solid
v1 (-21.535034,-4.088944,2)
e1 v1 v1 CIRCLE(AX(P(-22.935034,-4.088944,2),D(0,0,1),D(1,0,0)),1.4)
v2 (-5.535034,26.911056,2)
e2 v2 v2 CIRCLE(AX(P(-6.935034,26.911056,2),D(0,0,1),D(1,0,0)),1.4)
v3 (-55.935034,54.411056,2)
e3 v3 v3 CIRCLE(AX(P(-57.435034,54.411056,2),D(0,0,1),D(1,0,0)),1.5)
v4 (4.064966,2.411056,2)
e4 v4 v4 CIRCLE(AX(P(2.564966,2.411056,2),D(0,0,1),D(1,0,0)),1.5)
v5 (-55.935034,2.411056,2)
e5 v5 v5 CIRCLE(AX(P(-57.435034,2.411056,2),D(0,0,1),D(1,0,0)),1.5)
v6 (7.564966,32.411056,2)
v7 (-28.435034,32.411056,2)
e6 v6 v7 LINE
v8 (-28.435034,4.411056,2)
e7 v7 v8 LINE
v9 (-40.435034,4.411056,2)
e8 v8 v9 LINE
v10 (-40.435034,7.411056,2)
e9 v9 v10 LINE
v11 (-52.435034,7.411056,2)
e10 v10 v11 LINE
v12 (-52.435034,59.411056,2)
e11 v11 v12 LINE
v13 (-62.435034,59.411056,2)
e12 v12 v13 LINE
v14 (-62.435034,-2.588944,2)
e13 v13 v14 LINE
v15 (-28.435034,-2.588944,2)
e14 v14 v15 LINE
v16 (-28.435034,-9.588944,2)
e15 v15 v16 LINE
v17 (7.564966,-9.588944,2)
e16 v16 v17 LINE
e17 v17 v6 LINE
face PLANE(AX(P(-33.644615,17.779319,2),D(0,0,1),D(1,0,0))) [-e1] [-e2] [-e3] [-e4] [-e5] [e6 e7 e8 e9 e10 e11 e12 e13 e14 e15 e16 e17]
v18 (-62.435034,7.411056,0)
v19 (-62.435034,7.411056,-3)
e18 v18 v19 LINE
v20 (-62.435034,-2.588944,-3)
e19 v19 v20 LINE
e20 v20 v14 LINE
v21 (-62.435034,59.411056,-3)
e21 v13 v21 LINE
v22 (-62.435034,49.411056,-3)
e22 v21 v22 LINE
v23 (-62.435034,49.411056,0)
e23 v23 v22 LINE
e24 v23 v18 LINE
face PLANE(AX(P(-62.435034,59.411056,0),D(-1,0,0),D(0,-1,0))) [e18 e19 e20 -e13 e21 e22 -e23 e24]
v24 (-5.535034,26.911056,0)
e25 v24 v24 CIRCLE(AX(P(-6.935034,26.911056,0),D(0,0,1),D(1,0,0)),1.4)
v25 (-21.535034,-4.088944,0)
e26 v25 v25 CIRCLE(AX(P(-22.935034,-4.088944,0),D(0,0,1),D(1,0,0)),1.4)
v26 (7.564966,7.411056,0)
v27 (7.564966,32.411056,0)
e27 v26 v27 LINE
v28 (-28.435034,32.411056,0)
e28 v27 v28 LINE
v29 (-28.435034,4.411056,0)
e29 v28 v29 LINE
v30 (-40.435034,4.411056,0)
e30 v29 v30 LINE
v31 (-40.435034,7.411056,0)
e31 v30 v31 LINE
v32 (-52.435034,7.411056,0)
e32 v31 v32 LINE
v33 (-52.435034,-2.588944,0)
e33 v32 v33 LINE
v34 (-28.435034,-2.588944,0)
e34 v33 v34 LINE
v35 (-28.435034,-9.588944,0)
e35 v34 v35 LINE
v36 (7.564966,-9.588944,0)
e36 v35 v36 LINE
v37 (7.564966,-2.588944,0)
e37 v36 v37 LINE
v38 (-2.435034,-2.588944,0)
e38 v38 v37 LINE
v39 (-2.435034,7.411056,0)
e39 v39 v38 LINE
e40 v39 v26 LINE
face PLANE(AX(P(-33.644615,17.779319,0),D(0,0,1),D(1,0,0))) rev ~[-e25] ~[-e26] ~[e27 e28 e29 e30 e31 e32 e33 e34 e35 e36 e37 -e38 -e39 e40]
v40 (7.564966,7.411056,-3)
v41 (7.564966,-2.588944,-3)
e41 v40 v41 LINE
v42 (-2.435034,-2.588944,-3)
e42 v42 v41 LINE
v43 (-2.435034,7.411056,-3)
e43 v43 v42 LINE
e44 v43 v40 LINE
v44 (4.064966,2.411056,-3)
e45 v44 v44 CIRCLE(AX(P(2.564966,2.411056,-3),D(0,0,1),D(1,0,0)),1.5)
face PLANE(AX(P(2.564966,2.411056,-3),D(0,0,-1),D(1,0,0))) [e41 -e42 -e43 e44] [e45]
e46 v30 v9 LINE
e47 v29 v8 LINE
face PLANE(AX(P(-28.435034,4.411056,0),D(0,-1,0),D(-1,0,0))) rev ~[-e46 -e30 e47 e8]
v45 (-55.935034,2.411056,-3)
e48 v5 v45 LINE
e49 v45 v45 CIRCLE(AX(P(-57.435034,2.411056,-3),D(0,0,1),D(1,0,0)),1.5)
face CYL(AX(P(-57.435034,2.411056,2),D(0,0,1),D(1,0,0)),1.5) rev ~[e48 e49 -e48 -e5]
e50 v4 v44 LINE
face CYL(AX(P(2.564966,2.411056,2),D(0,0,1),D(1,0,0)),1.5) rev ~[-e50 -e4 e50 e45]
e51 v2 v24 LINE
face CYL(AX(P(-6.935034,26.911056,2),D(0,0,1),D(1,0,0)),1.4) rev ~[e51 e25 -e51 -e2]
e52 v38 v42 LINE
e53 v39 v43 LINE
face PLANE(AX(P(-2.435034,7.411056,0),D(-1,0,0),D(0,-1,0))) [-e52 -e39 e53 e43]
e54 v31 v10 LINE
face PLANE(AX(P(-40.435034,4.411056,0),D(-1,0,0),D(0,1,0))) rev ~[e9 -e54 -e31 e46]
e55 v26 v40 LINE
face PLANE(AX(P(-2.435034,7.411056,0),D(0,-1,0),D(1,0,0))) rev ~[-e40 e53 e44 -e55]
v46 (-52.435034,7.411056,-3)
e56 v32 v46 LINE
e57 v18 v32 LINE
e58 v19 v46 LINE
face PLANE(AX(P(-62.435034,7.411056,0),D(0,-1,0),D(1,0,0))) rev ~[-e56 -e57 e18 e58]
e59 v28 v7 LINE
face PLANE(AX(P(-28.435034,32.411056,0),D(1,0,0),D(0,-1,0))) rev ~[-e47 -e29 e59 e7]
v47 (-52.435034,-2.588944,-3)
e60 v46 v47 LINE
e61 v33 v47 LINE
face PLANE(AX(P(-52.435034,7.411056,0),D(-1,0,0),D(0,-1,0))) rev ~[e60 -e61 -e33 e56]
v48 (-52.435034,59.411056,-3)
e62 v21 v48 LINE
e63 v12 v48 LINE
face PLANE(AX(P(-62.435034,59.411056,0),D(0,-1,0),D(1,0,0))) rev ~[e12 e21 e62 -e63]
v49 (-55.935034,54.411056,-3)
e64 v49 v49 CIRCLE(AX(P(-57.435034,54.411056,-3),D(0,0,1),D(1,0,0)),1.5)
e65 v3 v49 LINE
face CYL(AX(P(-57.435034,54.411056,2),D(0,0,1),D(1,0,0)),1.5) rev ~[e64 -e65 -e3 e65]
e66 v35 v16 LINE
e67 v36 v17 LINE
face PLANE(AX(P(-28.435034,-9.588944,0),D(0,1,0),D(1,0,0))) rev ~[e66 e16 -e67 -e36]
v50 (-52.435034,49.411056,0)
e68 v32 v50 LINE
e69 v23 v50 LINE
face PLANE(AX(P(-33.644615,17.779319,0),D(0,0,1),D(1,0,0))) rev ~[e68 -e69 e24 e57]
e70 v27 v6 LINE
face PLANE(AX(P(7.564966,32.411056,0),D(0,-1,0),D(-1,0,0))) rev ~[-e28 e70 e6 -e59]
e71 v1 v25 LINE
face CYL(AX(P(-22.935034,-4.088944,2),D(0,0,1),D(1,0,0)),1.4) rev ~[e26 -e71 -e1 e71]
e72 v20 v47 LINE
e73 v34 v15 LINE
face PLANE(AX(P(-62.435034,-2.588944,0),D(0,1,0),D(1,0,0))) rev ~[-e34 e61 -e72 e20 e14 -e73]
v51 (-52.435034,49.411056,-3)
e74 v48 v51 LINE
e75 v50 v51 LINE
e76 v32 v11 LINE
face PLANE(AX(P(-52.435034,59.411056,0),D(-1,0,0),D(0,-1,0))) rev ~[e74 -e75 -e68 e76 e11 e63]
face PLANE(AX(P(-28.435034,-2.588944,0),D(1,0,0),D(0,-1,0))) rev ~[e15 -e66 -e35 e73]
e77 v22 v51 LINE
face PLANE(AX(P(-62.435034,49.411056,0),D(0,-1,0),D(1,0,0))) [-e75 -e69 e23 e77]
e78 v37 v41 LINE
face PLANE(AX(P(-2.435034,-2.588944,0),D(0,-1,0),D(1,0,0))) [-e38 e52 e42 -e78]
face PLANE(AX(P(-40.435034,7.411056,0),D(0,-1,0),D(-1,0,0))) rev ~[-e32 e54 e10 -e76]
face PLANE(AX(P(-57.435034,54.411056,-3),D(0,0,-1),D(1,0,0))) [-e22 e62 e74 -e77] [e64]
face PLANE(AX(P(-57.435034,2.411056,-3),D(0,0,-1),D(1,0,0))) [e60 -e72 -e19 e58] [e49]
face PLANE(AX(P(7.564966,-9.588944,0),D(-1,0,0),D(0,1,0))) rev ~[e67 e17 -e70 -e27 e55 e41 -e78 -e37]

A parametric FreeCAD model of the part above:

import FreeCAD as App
import Part
import Sketcher

V = App.Vector
Q = App.Units.Quantity

doc = App.newDocument("Part")
body = doc.addObject("PartDesign::Body", "Body")

# Sketch on XY plane
sketch1 = doc.addObject("Sketcher::SketchObject", "Sketch")
body.addObject(sketch1)
sketch1.AttachmentSupport = (doc.XY_Plane, [""])
sketch1.MapMode = "FlatFace"
sketch1.addGeometry(Part.LineSegment(V(-52.435034, 59.411056, 0), V(-62.435034, 59.411056, 0)), False)
sketch1.addGeometry(Part.LineSegment(V(-62.435034, 59.411056, 0), V(-62.435034, -2.588944, 0)), False)
sketch1.addGeometry(Part.LineSegment(V(-62.435034, -2.588944, 0), V(-28.435034, -2.588944, 0)), False)
sketch1.addGeometry(Part.LineSegment(V(-28.435034, -2.588944, 0), V(-28.435034, -9.588944, 0)), False)
sketch1.addGeometry(Part.LineSegment(V(-28.435034, -9.588944, 0), V(7.564966, -9.588944, 0)), False)
sketch1.addGeometry(Part.LineSegment(V(7.564966, -9.588944, 0), V(7.564966, 32.411056, 0)), False)
sketch1.addGeometry(Part.LineSegment(V(7.564966, 32.411056, 0), V(-28.435034, 32.411056, 0)), False)
sketch1.addGeometry(Part.LineSegment(V(-28.435034, 32.411056, 0), V(-28.435034, 4.411056, 0)), False)
sketch1.addGeometry(Part.LineSegment(V(-28.435034, 4.411056, 0), V(-40.435034, 4.411056, 0)), False)
sketch1.addGeometry(Part.LineSegment(V(-40.435034, 4.411056, 0), V(-40.435034, 7.411056, 0)), False)
sketch1.addGeometry(Part.LineSegment(V(-40.435034, 7.411056, 0), V(-52.435034, 7.411056, 0)), False)
sketch1.addGeometry(Part.LineSegment(V(-52.435034, 7.411056, 0), V(-52.435034, 59.411056, 0)), False)
sketch1.addConstraint(Sketcher.Constraint("Coincident", 0, 2, 1, 1))
sketch1.addConstraint(Sketcher.Constraint("Coincident", 1, 2, 2, 1))
sketch1.addConstraint(Sketcher.Constraint("Coincident", 2, 2, 3, 1))
sketch1.addConstraint(Sketcher.Constraint("Coincident", 3, 2, 4, 1))
sketch1.addConstraint(Sketcher.Constraint("Coincident", 4, 2, 5, 1))
sketch1.addConstraint(Sketcher.Constraint("Coincident", 5, 2, 6, 1))
sketch1.addConstraint(Sketcher.Constraint("Coincident", 6, 2, 7, 1))
sketch1.addConstraint(Sketcher.Constraint("Coincident", 7, 2, 8, 1))
sketch1.addConstraint(Sketcher.Constraint("Coincident", 8, 2, 9, 1))
sketch1.addConstraint(Sketcher.Constraint("Coincident", 9, 2, 10, 1))
sketch1.addConstraint(Sketcher.Constraint("Coincident", 10, 2, 11, 1))
sketch1.addConstraint(Sketcher.Constraint("Coincident", 11, 2, 0, 1))
sketch1.addConstraint(Sketcher.Constraint("Horizontal", 0))
sketch1.addConstraint(Sketcher.Constraint("Vertical", 1))
sketch1.addConstraint(Sketcher.Constraint("Horizontal", 2))
sketch1.addConstraint(Sketcher.Constraint("Vertical", 3))
sketch1.addConstraint(Sketcher.Constraint("Horizontal", 4))
sketch1.addConstraint(Sketcher.Constraint("Vertical", 5))
sketch1.addConstraint(Sketcher.Constraint("Horizontal", 6))
sketch1.addConstraint(Sketcher.Constraint("Vertical", 7))
sketch1.addConstraint(Sketcher.Constraint("Horizontal", 8))
sketch1.addConstraint(Sketcher.Constraint("Vertical", 9))
sketch1.addConstraint(Sketcher.Constraint("Horizontal", 10))
sketch1.addConstraint(Sketcher.Constraint("Vertical", 11))
sketch1.addConstraint(Sketcher.Constraint("Vertical", 3, 2, 6, 2))
sketch1.addConstraint(Sketcher.Constraint("Equal", 8, 10))
sketch1.addConstraint(Sketcher.Constraint("DistanceX", 0, 2, 0, 1, Q("10 mm")))
sketch1.addConstraint(Sketcher.Constraint("DistanceX", 2, 1, 2, 2, Q("34 mm")))
sketch1.addConstraint(Sketcher.Constraint("DistanceX", 4, 1, 4, 2, Q("36 mm")))
sketch1.addConstraint(Sketcher.Constraint("DistanceY", 1, 2, 1, 1, Q("62 mm")))
sketch1.addConstraint(Sketcher.Constraint("DistanceY", 3, 2, 3, 1, Q("7 mm")))
sketch1.addConstraint(Sketcher.Constraint("DistanceY", 5, 1, 5, 2, Q("42 mm")))
sketch1.addConstraint(Sketcher.Constraint("DistanceY", 7, 2, 7, 1, Q("28 mm")))
sketch1.addConstraint(Sketcher.Constraint("DistanceY", 9, 1, 9, 2, Q("3 mm")))
sketch1.addConstraint(Sketcher.Constraint("DistanceX", 0, 2, -1, 1, Q("62.435034 mm")))
sketch1.addConstraint(Sketcher.Constraint("DistanceY", -1, 1, 0, 2, Q("59.411056 mm")))
pad1 = doc.addObject("PartDesign::Pad", "Pad")
body.addObject(pad1)
pad1.Profile = sketch1
pad1.Length = 2

# Sketch on XY plane
sketch2 = doc.addObject("Sketcher::SketchObject", "Sketch001")
body.addObject(sketch2)
sketch2.AttachmentSupport = (doc.XY_Plane, [""])
sketch2.MapMode = "FlatFace"
sketch2.addGeometry(Part.LineSegment(V(-62.435034, 49.411056, 0), V(-62.435034, 59.411056, 0)), False)
sketch2.addGeometry(Part.LineSegment(V(-62.435034, 59.411056, 0), V(-52.435034, 59.411056, 0)), False)
sketch2.addGeometry(Part.LineSegment(V(-52.435034, 59.411056, 0), V(-52.435034, 49.411056, 0)), False)
sketch2.addGeometry(Part.LineSegment(V(-52.435034, 49.411056, 0), V(-62.435034, 49.411056, 0)), False)
sketch2.addGeometry(Part.LineSegment(V(-62.435034, -2.588944, 0), V(-62.435034, 7.411056, 0)), False)
sketch2.addGeometry(Part.LineSegment(V(-62.435034, 7.411056, 0), V(-52.435034, 7.411056, 0)), False)
sketch2.addGeometry(Part.LineSegment(V(-52.435034, 7.411056, 0), V(-52.435034, -2.588944, 0)), False)
sketch2.addGeometry(Part.LineSegment(V(-52.435034, -2.588944, 0), V(-62.435034, -2.588944, 0)), False)
sketch2.addGeometry(Part.LineSegment(V(-2.435034, -2.588944, 0), V(-2.435034, 7.411056, 0)), False)
sketch2.addGeometry(Part.LineSegment(V(-2.435034, 7.411056, 0), V(7.564966, 7.411056, 0)), False)
sketch2.addGeometry(Part.LineSegment(V(7.564966, 7.411056, 0), V(7.564966, -2.588944, 0)), False)
sketch2.addGeometry(Part.LineSegment(V(7.564966, -2.588944, 0), V(-2.435034, -2.588944, 0)), False)
sketch2.addConstraint(Sketcher.Constraint("Coincident", 0, 2, 1, 1))
sketch2.addConstraint(Sketcher.Constraint("Coincident", 1, 2, 2, 1))
sketch2.addConstraint(Sketcher.Constraint("Coincident", 2, 2, 3, 1))
sketch2.addConstraint(Sketcher.Constraint("Coincident", 3, 2, 0, 1))
sketch2.addConstraint(Sketcher.Constraint("Coincident", 4, 2, 5, 1))
sketch2.addConstraint(Sketcher.Constraint("Coincident", 5, 2, 6, 1))
sketch2.addConstraint(Sketcher.Constraint("Coincident", 6, 2, 7, 1))
sketch2.addConstraint(Sketcher.Constraint("Coincident", 7, 2, 4, 1))
sketch2.addConstraint(Sketcher.Constraint("Coincident", 8, 2, 9, 1))
sketch2.addConstraint(Sketcher.Constraint("Coincident", 9, 2, 10, 1))
sketch2.addConstraint(Sketcher.Constraint("Coincident", 10, 2, 11, 1))
sketch2.addConstraint(Sketcher.Constraint("Coincident", 11, 2, 8, 1))
sketch2.addConstraint(Sketcher.Constraint("Vertical", 0))
sketch2.addConstraint(Sketcher.Constraint("Horizontal", 1))
sketch2.addConstraint(Sketcher.Constraint("Vertical", 2))
sketch2.addConstraint(Sketcher.Constraint("Horizontal", 3))
sketch2.addConstraint(Sketcher.Constraint("Vertical", 4))
sketch2.addConstraint(Sketcher.Constraint("Horizontal", 5))
sketch2.addConstraint(Sketcher.Constraint("Vertical", 6))
sketch2.addConstraint(Sketcher.Constraint("Horizontal", 7))
sketch2.addConstraint(Sketcher.Constraint("Vertical", 8))
sketch2.addConstraint(Sketcher.Constraint("Horizontal", 9))
sketch2.addConstraint(Sketcher.Constraint("Vertical", 10))
sketch2.addConstraint(Sketcher.Constraint("Horizontal", 11))
sketch2.addConstraint(Sketcher.Constraint("Horizontal", 5, 2, 8, 2))
sketch2.addConstraint(Sketcher.Constraint("Horizontal", 7, 2, 10, 2))
sketch2.addConstraint(Sketcher.Constraint("Vertical", 3, 2, 4, 2))
sketch2.addConstraint(Sketcher.Constraint("Vertical", 2, 2, 5, 2))
sketch2.addConstraint(Sketcher.Constraint("Equal", 7, 9))
sketch2.addConstraint(Sketcher.Constraint("Equal", 11, 0))
sketch2.addConstraint(Sketcher.Constraint("Equal", 2, 4))
sketch2.addConstraint(Sketcher.Constraint("DistanceX", 1, 1, 1, 2, Q("10 mm")))
sketch2.addConstraint(Sketcher.Constraint("DistanceY", 4, 2, 3, 2, Q("42 mm")))
sketch2.addConstraint(Sketcher.Constraint("DistanceX", 5, 2, 8, 2, Q("50 mm")))
sketch2.addConstraint(Sketcher.Constraint("DistanceX", 0, 2, -1, 1, Q("62.435034 mm")))
sketch2.addConstraint(Sketcher.Constraint("DistanceY", -1, 1, 0, 2, Q("59.411056 mm")))
pad2 = doc.addObject("PartDesign::Pad", "Pad001")
body.addObject(pad2)
pad2.Profile = sketch2
pad2.Length = 3
pad2.Reversed = True

# Sketch on XY plane
sketch3 = doc.addObject("Sketcher::SketchObject", "Sketch002")
body.addObject(sketch3)
sketch3.AttachmentSupport = (doc.XY_Plane, [""])
sketch3.MapMode = "FlatFace"
sketch3.AttachmentOffset = App.Placement(V(0, 0, 2), App.Rotation())
sketch3.addGeometry(Part.Circle(V(-57.435034, 54.411056, 0), V(0, 0, 1), 1.5), False)
sketch3.addGeometry(Part.Circle(V(-57.435034, 2.411056, 0), V(0, 0, 1), 1.5), False)
sketch3.addGeometry(Part.Circle(V(2.564966, 2.411056, 0), V(0, 0, 1), 1.5), False)
sketch3.addGeometry(Part.Circle(V(-6.935034, 26.911056, 0), V(0, 0, 1), 1.4), False)
sketch3.addGeometry(Part.Circle(V(-22.935034, -4.088944, 0), V(0, 0, 1), 1.4), False)
sketch3.addConstraint(Sketcher.Constraint("Equal", 0, 1))
sketch3.addConstraint(Sketcher.Constraint("Equal", 1, 2))
sketch3.addConstraint(Sketcher.Constraint("Equal", 3, 4))
sketch3.addConstraint(Sketcher.Constraint("Horizontal", 1, 3, 2, 3))
sketch3.addConstraint(Sketcher.Constraint("Vertical", 0, 3, 1, 3))
sketch3.addConstraint(Sketcher.Constraint("Diameter", 0, Q("3 mm")))
sketch3.addConstraint(Sketcher.Constraint("Diameter", 3, Q("2.8 mm")))
sketch3.addConstraint(Sketcher.Constraint("DistanceY", 1, 3, 0, 3, Q("52 mm")))
sketch3.addConstraint(Sketcher.Constraint("DistanceX", 1, 3, 2, 3, Q("60 mm")))
sketch3.addConstraint(Sketcher.Constraint("DistanceX", 4, 3, 3, 3, Q("16 mm")))
sketch3.addConstraint(Sketcher.Constraint("DistanceY", 4, 3, 3, 3, Q("31 mm")))
sketch3.addConstraint(Sketcher.Constraint("DistanceX", 3, 3, 2, 3, Q("9.5 mm")))
sketch3.addConstraint(Sketcher.Constraint("DistanceY", 2, 3, 3, 3, Q("24.5 mm")))
sketch3.addConstraint(Sketcher.Constraint("DistanceX", 0, 3, -1, 1, Q("57.435034 mm")))
sketch3.addConstraint(Sketcher.Constraint("DistanceY", -1, 1, 0, 3, Q("54.411056 mm")))
pocket1 = doc.addObject("PartDesign::Pocket", "Pocket")
body.addObject(pocket1)
pocket1.Profile = sketch3
pocket1.Length = 5

doc.recompute()
